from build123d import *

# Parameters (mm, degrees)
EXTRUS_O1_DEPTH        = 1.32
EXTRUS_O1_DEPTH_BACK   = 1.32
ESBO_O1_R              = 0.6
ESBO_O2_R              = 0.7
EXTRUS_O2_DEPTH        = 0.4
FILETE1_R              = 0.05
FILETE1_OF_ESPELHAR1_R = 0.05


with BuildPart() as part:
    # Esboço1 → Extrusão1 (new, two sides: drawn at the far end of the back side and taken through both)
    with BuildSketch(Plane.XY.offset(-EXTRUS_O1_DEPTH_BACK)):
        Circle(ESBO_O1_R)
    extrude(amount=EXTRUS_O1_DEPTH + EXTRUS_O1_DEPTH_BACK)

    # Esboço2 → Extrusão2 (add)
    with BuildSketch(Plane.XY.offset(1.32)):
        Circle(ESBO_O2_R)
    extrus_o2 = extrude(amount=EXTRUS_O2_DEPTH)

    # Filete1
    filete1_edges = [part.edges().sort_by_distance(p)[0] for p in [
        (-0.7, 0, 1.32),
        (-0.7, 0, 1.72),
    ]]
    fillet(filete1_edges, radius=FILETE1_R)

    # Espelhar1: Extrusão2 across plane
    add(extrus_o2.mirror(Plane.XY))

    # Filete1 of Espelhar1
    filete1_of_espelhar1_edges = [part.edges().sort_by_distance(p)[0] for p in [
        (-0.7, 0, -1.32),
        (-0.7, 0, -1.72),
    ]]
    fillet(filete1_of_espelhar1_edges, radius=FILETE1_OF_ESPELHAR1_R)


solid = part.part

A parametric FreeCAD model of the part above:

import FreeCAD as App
import Part
import Sketcher
from FreeCAD import Vector


def edges_at(feature, points):
    """Names of the edges that pass closest to the given points."""
    edges = feature.Shape.Edges
    near = lambda p: min(range(len(edges)), key=lambda i: edges[i].distToShape(Part.Vertex(*p))[0])
    return sorted({f"Edge{near(p) + 1}" for p in points})

doc = App.newDocument("Part")
body = doc.addObject("PartDesign::Body", "Body")

# Sketch on XY plane
sketch1 = body.newObject("Sketcher::SketchObject", "Sketch")
sketch1.AttachmentSupport = (doc.getObject("XY_Plane"), [""])
sketch1.MapMode = "FlatFace"
sketch1.addGeometry(Part.Circle(Vector(0, 0, 0), Vector(0, 0, 1), 0.6), False)
sketch1.addConstraint([
    Sketcher.Constraint("Coincident", 0, 3, -1, 1),
    Sketcher.Constraint("Diameter", 0, 1.2),
])
pad1 = body.newObject("PartDesign::Pad", "Pad")
pad1.Profile = sketch1
pad1.Type = "TwoLengths"
pad1.Length = 1.32
pad1.Length2 = 1.32

# Sketch on XY plane
sketch2 = body.newObject("Sketcher::SketchObject", "Sketch001")
sketch2.AttachmentSupport = (doc.getObject("XY_Plane"), [""])
sketch2.MapMode = "FlatFace"
sketch2.AttachmentOffset = App.Placement(Vector(0, 0, 1.32), App.Rotation())
sketch2.addGeometry(Part.Circle(Vector(0, 0, 0), Vector(0, 0, 1), 0.7), False)
sketch2.addConstraint([
    Sketcher.Constraint("Coincident", 0, 3, -1, 1),
    Sketcher.Constraint("Diameter", 0, 1.4),
])
pad2 = body.newObject("PartDesign::Pad", "Pad001")
pad2.Profile = sketch2
pad2.Length = 0.4
doc.recompute()

fillet = body.newObject("PartDesign::Fillet", "Fillet")
fillet.Base = (pad2, edges_at(pad2, [(-0.7, 0, 1.32), (-0.7, 0, 1.72)]))
fillet.Radius = 0.05
doc.recompute()

mirrored = body.newObject("PartDesign::Mirrored", "Mirrored")
mirrored.Originals = [pad2]
mirrored.MirrorPlane = (doc.getObject("XY_Plane"), [""])
body.Tip = mirrored
doc.recompute()

fillet2 = body.newObject("PartDesign::Fillet", "Fillet001")
fillet2.Base = (mirrored, edges_at(mirrored, [(-0.7, 0, -1.32), (-0.7, 0, -1.72)]))
fillet2.Radius = 0.05

doc.recompute()
